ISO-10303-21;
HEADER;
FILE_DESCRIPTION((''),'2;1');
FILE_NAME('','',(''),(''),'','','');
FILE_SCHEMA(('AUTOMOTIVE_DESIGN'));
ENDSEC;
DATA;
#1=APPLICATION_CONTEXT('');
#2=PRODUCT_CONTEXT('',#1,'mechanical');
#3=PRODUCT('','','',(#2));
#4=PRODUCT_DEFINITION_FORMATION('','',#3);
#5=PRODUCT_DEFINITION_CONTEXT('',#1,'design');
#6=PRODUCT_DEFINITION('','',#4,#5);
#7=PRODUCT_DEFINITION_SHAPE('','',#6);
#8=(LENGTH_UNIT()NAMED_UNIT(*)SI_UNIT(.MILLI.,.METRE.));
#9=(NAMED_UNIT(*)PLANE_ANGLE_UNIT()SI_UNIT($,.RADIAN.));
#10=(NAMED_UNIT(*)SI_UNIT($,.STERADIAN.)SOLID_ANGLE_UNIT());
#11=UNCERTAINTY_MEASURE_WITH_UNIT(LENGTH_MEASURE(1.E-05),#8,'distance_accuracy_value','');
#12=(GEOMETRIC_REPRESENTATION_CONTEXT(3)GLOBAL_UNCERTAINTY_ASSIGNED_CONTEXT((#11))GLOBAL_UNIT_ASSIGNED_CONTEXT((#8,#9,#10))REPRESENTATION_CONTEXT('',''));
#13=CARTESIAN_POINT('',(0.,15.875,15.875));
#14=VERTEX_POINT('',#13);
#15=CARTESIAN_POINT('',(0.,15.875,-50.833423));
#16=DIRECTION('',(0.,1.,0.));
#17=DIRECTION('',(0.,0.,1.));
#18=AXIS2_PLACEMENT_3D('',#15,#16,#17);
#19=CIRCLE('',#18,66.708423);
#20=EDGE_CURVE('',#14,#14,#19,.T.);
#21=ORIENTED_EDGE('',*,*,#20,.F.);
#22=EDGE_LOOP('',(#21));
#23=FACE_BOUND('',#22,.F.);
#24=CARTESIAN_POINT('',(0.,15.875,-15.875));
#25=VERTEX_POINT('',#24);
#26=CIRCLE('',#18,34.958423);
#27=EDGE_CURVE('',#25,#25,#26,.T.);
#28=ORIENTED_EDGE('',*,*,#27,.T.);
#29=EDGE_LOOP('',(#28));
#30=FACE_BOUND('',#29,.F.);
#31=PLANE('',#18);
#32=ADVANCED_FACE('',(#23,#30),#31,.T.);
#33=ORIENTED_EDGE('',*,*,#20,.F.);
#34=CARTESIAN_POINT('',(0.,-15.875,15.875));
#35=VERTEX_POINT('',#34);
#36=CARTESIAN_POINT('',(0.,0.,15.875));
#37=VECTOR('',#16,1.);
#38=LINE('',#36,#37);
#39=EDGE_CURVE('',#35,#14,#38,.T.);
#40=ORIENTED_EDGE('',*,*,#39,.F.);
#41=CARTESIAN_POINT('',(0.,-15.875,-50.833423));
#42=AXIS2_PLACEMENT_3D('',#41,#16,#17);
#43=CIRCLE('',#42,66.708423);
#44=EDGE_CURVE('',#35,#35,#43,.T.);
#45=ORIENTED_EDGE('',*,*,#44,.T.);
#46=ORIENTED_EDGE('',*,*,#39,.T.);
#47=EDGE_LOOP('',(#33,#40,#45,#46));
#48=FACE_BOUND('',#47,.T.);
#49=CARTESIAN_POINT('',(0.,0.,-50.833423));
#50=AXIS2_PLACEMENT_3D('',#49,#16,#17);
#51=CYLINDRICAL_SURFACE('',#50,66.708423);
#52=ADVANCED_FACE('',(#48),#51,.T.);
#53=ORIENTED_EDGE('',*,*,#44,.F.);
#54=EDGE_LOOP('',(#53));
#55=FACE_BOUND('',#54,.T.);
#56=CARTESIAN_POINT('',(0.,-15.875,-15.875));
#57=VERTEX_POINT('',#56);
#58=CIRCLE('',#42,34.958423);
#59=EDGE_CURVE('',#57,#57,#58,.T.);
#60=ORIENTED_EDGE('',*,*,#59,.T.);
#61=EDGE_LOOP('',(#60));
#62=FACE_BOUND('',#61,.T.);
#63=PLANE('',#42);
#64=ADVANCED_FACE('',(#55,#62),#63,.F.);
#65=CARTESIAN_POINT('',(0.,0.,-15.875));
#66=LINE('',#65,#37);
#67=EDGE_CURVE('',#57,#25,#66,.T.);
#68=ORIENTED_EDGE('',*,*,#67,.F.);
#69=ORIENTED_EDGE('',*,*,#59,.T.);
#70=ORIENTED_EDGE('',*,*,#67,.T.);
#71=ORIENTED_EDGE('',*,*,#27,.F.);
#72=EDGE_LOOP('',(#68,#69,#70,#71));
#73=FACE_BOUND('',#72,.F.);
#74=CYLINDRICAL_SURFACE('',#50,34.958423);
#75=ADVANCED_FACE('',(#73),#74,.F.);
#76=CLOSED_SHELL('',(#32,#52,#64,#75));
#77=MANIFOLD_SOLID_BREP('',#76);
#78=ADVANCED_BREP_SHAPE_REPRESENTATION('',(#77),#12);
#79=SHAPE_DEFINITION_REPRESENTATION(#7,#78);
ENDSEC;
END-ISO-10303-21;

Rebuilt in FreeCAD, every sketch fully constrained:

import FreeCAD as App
import Part
import Sketcher

V = App.Vector
Q = App.Units.Quantity

doc = App.newDocument("Part")
body = doc.addObject("PartDesign::Body", "Body")

# Sketch on YZ plane
sketch1 = body.newObject("Sketcher::SketchObject", "Sketch")
sketch1.AttachmentSupport = (doc.getObject("YZ_Plane"), [""])
sketch1.MapMode = "FlatFace"
sketch1.addGeometry([
    Part.LineSegment(V(-15.875, 15.875, 0), V(-15.875, -15.875, 0)),
    Part.LineSegment(V(-15.875, -15.875, 0), V(15.875, -15.875, 0)),
    Part.LineSegment(V(15.875, -15.875, 0), V(15.875, 15.875, 0)),
    Part.LineSegment(V(15.875, 15.875, 0), V(-15.875, 15.875, 0)),
], False)
sketch1.addGeometry(Part.LineSegment(V(-15.875, -50.833423, 0), V(15.875, -50.833423, 0)), True)  # axis
sketch1.addConstraint([
    Sketcher.Constraint("Coincident", 0, 2, 1, 1),
    Sketcher.Constraint("Coincident", 1, 2, 2, 1),
    Sketcher.Constraint("Coincident", 2, 2, 3, 1),
    Sketcher.Constraint("Coincident", 3, 2, 0, 1),
    Sketcher.Constraint("Vertical", 0),
    Sketcher.Constraint("Horizontal", 1),
    Sketcher.Constraint("Vertical", 2),
    Sketcher.Constraint("Horizontal", 3),
    Sketcher.Constraint("Horizontal", 4),
    Sketcher.Constraint("Symmetric", 0, 2, 2, 2, -1, 1),
    Sketcher.Constraint("Vertical", 3, 2, 4, 1),
    Sketcher.Constraint("Vertical", 2, 2, 4, 2),
    Sketcher.Constraint("Equal", 4, 0),
    Sketcher.Constraint("DistanceX", 1, 1, 1, 2, Q("1.25 in")),
    Sketcher.Constraint("DistanceY", 4, 1, -1, 1, Q("50.833423 mm")),
])
revolution = body.newObject("PartDesign::Revolution", "Revolution")
revolution.Profile = sketch1
revolution.ReferenceAxis = (sketch1, ["Axis0"])
revolution.Angle = 360

doc.recompute()
